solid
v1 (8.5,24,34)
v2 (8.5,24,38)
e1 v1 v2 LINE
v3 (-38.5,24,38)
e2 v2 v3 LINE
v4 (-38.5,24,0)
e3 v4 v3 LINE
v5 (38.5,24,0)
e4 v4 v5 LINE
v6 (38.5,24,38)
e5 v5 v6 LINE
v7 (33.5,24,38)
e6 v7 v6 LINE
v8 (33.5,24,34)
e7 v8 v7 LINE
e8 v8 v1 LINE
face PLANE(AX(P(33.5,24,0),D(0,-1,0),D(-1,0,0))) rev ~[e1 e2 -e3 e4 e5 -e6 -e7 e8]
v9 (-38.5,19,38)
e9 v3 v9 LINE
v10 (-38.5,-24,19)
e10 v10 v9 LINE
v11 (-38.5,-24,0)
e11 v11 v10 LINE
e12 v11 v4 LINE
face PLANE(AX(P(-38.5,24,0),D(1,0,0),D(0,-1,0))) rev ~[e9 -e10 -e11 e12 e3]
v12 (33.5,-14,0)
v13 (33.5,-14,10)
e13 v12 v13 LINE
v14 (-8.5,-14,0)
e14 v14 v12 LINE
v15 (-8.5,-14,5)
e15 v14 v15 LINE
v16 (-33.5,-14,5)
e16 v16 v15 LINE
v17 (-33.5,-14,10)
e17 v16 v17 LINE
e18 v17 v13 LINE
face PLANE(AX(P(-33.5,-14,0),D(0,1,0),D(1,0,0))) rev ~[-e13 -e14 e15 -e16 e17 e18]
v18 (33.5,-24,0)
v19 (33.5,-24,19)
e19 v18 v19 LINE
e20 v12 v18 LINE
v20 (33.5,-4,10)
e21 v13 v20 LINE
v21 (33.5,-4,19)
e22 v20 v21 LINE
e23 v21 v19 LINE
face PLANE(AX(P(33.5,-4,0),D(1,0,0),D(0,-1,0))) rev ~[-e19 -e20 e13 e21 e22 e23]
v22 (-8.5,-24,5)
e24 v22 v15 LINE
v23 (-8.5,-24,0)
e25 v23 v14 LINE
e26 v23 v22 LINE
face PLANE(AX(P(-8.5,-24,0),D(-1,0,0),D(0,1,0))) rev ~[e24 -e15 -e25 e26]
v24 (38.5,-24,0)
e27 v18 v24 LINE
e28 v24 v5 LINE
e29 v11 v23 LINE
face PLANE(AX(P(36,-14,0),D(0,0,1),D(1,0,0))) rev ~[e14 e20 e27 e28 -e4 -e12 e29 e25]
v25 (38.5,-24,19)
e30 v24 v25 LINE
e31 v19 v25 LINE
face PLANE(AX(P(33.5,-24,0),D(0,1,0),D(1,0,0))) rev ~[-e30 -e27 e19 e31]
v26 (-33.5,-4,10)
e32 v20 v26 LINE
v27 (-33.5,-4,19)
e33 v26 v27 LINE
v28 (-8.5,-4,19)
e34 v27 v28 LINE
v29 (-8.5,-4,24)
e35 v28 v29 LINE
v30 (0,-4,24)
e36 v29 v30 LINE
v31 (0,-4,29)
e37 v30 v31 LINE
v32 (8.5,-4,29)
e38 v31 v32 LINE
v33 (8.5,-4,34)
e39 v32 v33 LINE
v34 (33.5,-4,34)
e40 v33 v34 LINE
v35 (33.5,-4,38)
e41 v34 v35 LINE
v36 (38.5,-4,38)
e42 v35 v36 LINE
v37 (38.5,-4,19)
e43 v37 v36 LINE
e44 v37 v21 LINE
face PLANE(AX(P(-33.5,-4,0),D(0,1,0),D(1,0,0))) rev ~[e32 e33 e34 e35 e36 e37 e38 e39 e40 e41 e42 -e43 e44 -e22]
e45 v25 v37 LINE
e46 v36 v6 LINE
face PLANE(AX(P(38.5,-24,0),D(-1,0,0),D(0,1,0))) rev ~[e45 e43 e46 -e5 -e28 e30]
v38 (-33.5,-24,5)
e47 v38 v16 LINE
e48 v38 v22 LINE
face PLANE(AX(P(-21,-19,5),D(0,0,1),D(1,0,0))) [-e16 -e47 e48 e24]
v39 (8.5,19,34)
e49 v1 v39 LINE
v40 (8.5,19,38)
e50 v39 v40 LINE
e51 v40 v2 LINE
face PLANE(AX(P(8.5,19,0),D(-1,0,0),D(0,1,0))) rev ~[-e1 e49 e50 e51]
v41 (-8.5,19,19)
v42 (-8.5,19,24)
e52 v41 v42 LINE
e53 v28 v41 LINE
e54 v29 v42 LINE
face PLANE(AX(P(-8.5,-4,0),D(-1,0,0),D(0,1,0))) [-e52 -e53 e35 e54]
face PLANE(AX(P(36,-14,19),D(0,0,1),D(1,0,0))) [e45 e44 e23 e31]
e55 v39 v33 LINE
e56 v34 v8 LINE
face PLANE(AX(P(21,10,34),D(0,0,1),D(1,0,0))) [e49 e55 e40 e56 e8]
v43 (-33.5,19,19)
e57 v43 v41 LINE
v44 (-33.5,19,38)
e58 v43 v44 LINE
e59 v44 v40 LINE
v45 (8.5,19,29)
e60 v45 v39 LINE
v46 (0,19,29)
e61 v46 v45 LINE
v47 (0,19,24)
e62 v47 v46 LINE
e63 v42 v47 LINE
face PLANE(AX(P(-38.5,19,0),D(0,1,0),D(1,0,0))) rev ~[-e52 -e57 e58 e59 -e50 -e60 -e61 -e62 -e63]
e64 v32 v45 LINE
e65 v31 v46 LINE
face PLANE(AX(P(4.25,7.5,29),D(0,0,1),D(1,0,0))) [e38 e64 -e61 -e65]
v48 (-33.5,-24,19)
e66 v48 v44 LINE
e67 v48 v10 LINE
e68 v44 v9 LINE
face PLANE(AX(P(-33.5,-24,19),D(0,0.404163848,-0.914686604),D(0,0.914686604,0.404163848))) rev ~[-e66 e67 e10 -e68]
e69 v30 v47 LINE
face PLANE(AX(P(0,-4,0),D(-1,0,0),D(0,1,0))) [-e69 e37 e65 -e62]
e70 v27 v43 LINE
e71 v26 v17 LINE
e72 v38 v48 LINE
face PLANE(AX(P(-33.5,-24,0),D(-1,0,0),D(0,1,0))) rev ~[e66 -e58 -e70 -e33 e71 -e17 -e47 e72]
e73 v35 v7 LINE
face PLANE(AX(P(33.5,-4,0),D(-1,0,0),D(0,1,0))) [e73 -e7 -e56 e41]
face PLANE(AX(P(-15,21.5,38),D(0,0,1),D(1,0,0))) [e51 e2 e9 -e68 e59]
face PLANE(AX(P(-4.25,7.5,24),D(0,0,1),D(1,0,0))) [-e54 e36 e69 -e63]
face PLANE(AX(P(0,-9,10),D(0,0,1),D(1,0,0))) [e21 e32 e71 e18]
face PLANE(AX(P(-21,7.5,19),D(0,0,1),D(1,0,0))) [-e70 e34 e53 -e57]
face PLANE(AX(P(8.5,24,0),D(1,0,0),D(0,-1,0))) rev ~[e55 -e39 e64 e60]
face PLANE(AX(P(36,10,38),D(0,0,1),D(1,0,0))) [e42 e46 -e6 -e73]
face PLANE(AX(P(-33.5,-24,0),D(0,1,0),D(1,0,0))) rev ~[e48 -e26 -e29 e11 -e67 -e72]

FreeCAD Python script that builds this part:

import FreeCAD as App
import Part
import Sketcher

V = App.Vector
Q = App.Units.Quantity

doc = App.newDocument("Part")
body = doc.addObject("PartDesign::Body", "Body")

# Sketch on XY plane
sketch1 = body.newObject("Sketcher::SketchObject", "Sketch")
sketch1.AttachmentSupport = (doc.getObject("XY_Plane"), [""])
sketch1.MapMode = "FlatFace"
sketch1.addGeometry([
    Part.LineSegment(V(-34, -24, 0), V(-34, 19, 0)),
    Part.LineSegment(V(-34, 19, 0), V(-38, 19, 0)),
    Part.LineSegment(V(-38, 19, 0), V(-38, -24, 0)),
    Part.LineSegment(V(-38, -24, 0), V(-34, -24, 0)),
], False)
sketch1.addConstraint([
    Sketcher.Constraint("Coincident", 0, 2, 1, 1),
    Sketcher.Constraint("Coincident", 1, 2, 2, 1),
    Sketcher.Constraint("Coincident", 2, 2, 3, 1),
    Sketcher.Constraint("Coincident", 3, 2, 0, 1),
    Sketcher.Constraint("Vertical", 0),
    Sketcher.Constraint("Horizontal", 1),
    Sketcher.Constraint("Vertical", 2),
    Sketcher.Constraint("Horizontal", 3),
    Sketcher.Constraint("DistanceX", 1, 2, 1, 1, Q("5 mm")),
    Sketcher.Constraint("DistanceY", 0, 1, 0, 2, Q("43 mm")),
    Sketcher.Constraint("DistanceY", -1, 1, 0, 2, Q("19 mm")),
    Sketcher.Constraint("DistanceX", 0, 2, -1, 1, Q("33.5 mm")),
])
pad1 = body.newObject("PartDesign::Pad", "Pad")
pad1.Profile = sketch1
pad1.Length = 38

# Sketch on YZ plane
sketch2 = body.newObject("Sketcher::SketchObject", "Sketch001")
sketch2.AttachmentSupport = (doc.getObject("YZ_Plane"), [""])
sketch2.MapMode = "FlatFace"
sketch2.AttachmentOffset = App.Placement(V(0, 0, -33.5), App.Rotation())
sketch2.addGeometry([
    Part.LineSegment(V(-24, 19, 0), V(19, 38, 0)),
    Part.LineSegment(V(19, 38, 0), V(-24, 38, 0)),
    Part.LineSegment(V(-24, 38, 0), V(-24, 19, 0)),
], False)
sketch2.addConstraint([
    Sketcher.Constraint("Coincident", 0, 2, 1, 1),
    Sketcher.Constraint("Coincident", 1, 2, 2, 1),
    Sketcher.Constraint("Coincident", 2, 2, 0, 1),
    Sketcher.Constraint("Horizontal", 1),
    Sketcher.Constraint("Vertical", 2),
    Sketcher.Constraint("DistanceX", 1, 2, 1, 1, Q("43 mm")),
    Sketcher.Constraint("DistanceY", 2, 2, 2, 1, Q("19 mm")),
    Sketcher.Constraint("DistanceX", -1, 1, 0, 2, Q("19 mm")),
    Sketcher.Constraint("DistanceY", -1, 1, 0, 2, Q("38 mm")),
])
pocket1 = body.newObject("PartDesign::Pocket", "Pocket")
pocket1.Profile = sketch2
pocket1.Length = 25

# Sketch on XY plane
sketch3 = body.newObject("Sketcher::SketchObject", "Sketch002")
sketch3.AttachmentSupport = (doc.getObject("XY_Plane"), [""])
sketch3.MapMode = "FlatFace"
sketch3.addGeometry([
    Part.LineSegment(V(8, 19, 0), V(8, 24, 0)),
    Part.LineSegment(V(8, 24, 0), V(-38, 24, 0)),
    Part.LineSegment(V(-38, 24, 0), V(-38, 19, 0)),
    Part.LineSegment(V(-38, 19, 0), V(8, 19, 0)),
], False)
sketch3.addConstraint([
    Sketcher.Constraint("Coincident", 0, 2, 1, 1),
    Sketcher.Constraint("Coincident", 1, 2, 2, 1),
    Sketcher.Constraint("Coincident", 2, 2, 3, 1),
    Sketcher.Constraint("Coincident", 3, 2, 0, 1),
    Sketcher.Constraint("Vertical", 0),
    Sketcher.Constraint("Horizontal", 1),
    Sketcher.Constraint("Vertical", 2),
    Sketcher.Constraint("Horizontal", 3),
    Sketcher.Constraint("DistanceX", 1, 2, 1, 1, Q("47 mm")),
    Sketcher.Constraint("DistanceY", 0, 1, 0, 2, Q("5 mm")),
    Sketcher.Constraint("DistanceY", -1, 1, 0, 2, Q("24 mm")),
    Sketcher.Constraint("DistanceX", -1, 1, 0, 2, Q("8.5 mm")),
])
pad2 = body.newObject("PartDesign::Pad", "Pad001")
pad2.Profile = sketch3
pad2.Length = 38
body2 = doc.addObject("PartDesign::Body", "Body001")

# Sketch on XY plane
sketch4 = body2.newObject("Sketcher::SketchObject", "Sketch003")
sketch4.AttachmentSupport = (doc.getObject("XY_Plane001"), [""])
sketch4.MapMode = "FlatFace"
sketch4.addGeometry([
    Part.LineSegment(V(34, 24, 0), V(34, -4, 0)),
    Part.LineSegment(V(34, -4, 0), V(38, -4, 0)),
    Part.LineSegment(V(38, -4, 0), V(38, 24, 0)),
    Part.LineSegment(V(38, 24, 0), V(34, 24, 0)),
], False)
sketch4.addConstraint([
    Sketcher.Constraint("Coincident", 0, 2, 1, 1),
    Sketcher.Constraint("Coincident", 1, 2, 2, 1),
    Sketcher.Constraint("Coincident", 2, 2, 3, 1),
    Sketcher.Constraint("Coincident", 3, 2, 0, 1),
    Sketcher.Constraint("Vertical", 0),
    Sketcher.Constraint("Horizontal", 1),
    Sketcher.Constraint("Vertical", 2),
    Sketcher.Constraint("Horizontal", 3),
    Sketcher.Constraint("DistanceX", 1, 1, 1, 2, Q("5 mm")),
    Sketcher.Constraint("DistanceY", 0, 2, 0, 1, Q("28 mm")),
    Sketcher.Constraint("DistanceY", 0, 2, -1, 1, Q("4 mm")),
    Sketcher.Constraint("DistanceX", -1, 1, 0, 2, Q("33.5 mm")),
])
pad3 = body2.newObject("PartDesign::Pad", "Pad002")
pad3.Profile = sketch4
pad3.Length = 38
body.AllowCompound = True
doc.recompute()

boolean = body.newObject("PartDesign::Boolean", "Boolean")
boolean.Type = "Fuse"
boolean.addObjects([body2])

# Sketch on XY plane
sketch5 = body.newObject("Sketcher::SketchObject", "Sketch004")
sketch5.AttachmentSupport = (doc.getObject("XY_Plane"), [""])
sketch5.MapMode = "FlatFace"
sketch5.addGeometry([
    Part.LineSegment(V(8, -4, 0), V(34, -4, 0)),
    Part.LineSegment(V(34, -4, 0), V(34, 24, 0)),
    Part.LineSegment(V(34, 24, 0), V(8, 24, 0)),
    Part.LineSegment(V(8, 24, 0), V(8, -4, 0)),
], False)
sketch5.addConstraint([
    Sketcher.Constraint("Coincident", 0, 2, 1, 1),
    Sketcher.Constraint("Coincident", 1, 2, 2, 1),
    Sketcher.Constraint("Coincident", 2, 2, 3, 1),
    Sketcher.Constraint("Coincident", 3, 2, 0, 1),
    Sketcher.Constraint("Horizontal", 0),
    Sketcher.Constraint("Vertical", 1),
    Sketcher.Constraint("Horizontal", 2),
    Sketcher.Constraint("Vertical", 3),
    Sketcher.Constraint("DistanceX", 0, 1, 0, 2, Q("25 mm")),
    Sketcher.Constraint("DistanceY", 1, 1, 1, 2, Q("28 mm")),
    Sketcher.Constraint("DistanceY", 0, 2, -1, 1, Q("4 mm")),
    Sketcher.Constraint("DistanceX", -1, 1, 0, 2, Q("33.5 mm")),
])
pad4 = body.newObject("PartDesign::Pad", "Pad003")
pad4.Profile = sketch5
pad4.Length = 34

# Sketch on XY plane
sketch6 = body.newObject("Sketcher::SketchObject", "Sketch005")
sketch6.AttachmentSupport = (doc.getObject("XY_Plane"), [""])
sketch6.MapMode = "FlatFace"
sketch6.addGeometry([
    Part.LineSegment(V(0, 19, 0), V(0, -4, 0)),
    Part.LineSegment(V(0, -4, 0), V(8, -4, 0)),
    Part.LineSegment(V(8, -4, 0), V(8, 19, 0)),
    Part.LineSegment(V(8, 19, 0), V(0, 19, 0)),
], False)
sketch6.addConstraint([
    Sketcher.Constraint("Coincident", 0, 2, 1, 1),
    Sketcher.Constraint("Coincident", 1, 2, 2, 1),
    Sketcher.Constraint("Coincident", 2, 2, 3, 1),
    Sketcher.Constraint("Coincident", 3, 2, 0, 1),
    Sketcher.Constraint("Vertical", 0),
    Sketcher.Constraint("Horizontal", 1),
    Sketcher.Constraint("Vertical", 2),
    Sketcher.Constraint("Horizontal", 3),
    Sketcher.Constraint("PointOnObject", 0, 2, -2),
    Sketcher.Constraint("DistanceY", 0, 2, 0, 1, Q("23 mm")),
    Sketcher.Constraint("DistanceX", 1, 1, 1, 2, Q("8.5 mm")),
    Sketcher.Constraint("DistanceY", 0, 2, -1, 1, Q("4 mm")),
])
pad5 = body.newObject("PartDesign::Pad", "Pad004")
pad5.Profile = sketch6
pad5.Length = 29

# Sketch on XY plane
sketch7 = body.newObject("Sketcher::SketchObject", "Sketch006")
sketch7.AttachmentSupport = (doc.getObject("XY_Plane"), [""])
sketch7.MapMode = "FlatFace"
sketch7.addGeometry([
    Part.LineSegment(V(-8, 19, 0), V(-8, -4, 0)),
    Part.LineSegment(V(-8, -4, 0), V(0, -4, 0)),
    Part.LineSegment(V(0, -4, 0), V(0, 19, 0)),
    Part.LineSegment(V(0, 19, 0), V(-8, 19, 0)),
], False)
sketch7.addConstraint([
    Sketcher.Constraint("Coincident", 0, 2, 1, 1),
    Sketcher.Constraint("Coincident", 1, 2, 2, 1),
    Sketcher.Constraint("Coincident", 2, 2, 3, 1),
    Sketcher.Constraint("Coincident", 3, 2, 0, 1),
    Sketcher.Constraint("Vertical", 0),
    Sketcher.Constraint("Horizontal", 1),
    Sketcher.Constraint("Vertical", 2),
    Sketcher.Constraint("Horizontal", 3),
    Sketcher.Constraint("PointOnObject", 1, 2, -2),
    Sketcher.Constraint("DistanceY", 0, 2, 0, 1, Q("23 mm")),
    Sketcher.Constraint("DistanceX", 1, 1, 1, 2, Q("8.5 mm")),
    Sketcher.Constraint("DistanceY", 0, 2, -1, 1, Q("4 mm")),
])
pad6 = body.newObject("PartDesign::Pad", "Pad005")
pad6.Profile = sketch7
pad6.Length = 24

# Sketch on XY plane
sketch8 = body.newObject("Sketcher::SketchObject", "Sketch007")
sketch8.AttachmentSupport = (doc.getObject("XY_Plane"), [""])
sketch8.MapMode = "FlatFace"
sketch8.addGeometry([
    Part.LineSegment(V(-34, 19, 0), V(-34, -4, 0)),
    Part.LineSegment(V(-34, -4, 0), V(-8, -4, 0)),
    Part.LineSegment(V(-8, -4, 0), V(-8, 19, 0)),
    Part.LineSegment(V(-8, 19, 0), V(-34, 19, 0)),
], False)
sketch8.addConstraint([
    Sketcher.Constraint("Coincident", 0, 2, 1, 1),
    Sketcher.Constraint("Coincident", 1, 2, 2, 1),
    Sketcher.Constraint("Coincident", 2, 2, 3, 1),
    Sketcher.Constraint("Coincident", 3, 2, 0, 1),
    Sketcher.Constraint("Vertical", 0),
    Sketcher.Constraint("Horizontal", 1),
    Sketcher.Constraint("Vertical", 2),
    Sketcher.Constraint("Horizontal", 3),
    Sketcher.Constraint("DistanceX", 1, 1, 1, 2, Q("25 mm")),
    Sketcher.Constraint("DistanceY", 0, 2, 0, 1, Q("23 mm")),
    Sketcher.Constraint("DistanceY", 0, 2, -1, 1, Q("4 mm")),
    Sketcher.Constraint("DistanceX", 0, 2, -1, 1, Q("33.5 mm")),
])
pad7 = body.newObject("PartDesign::Pad", "Pad006")
pad7.Profile = sketch8
pad7.Length = 19

# Sketch on XY plane
sketch9 = body.newObject("Sketcher::SketchObject", "Sketch008")
sketch9.AttachmentSupport = (doc.getObject("XY_Plane"), [""])
sketch9.MapMode = "FlatFace"
sketch9.addGeometry([
    Part.LineSegment(V(34, -14, 0), V(34, -4, 0)),
    Part.LineSegment(V(34, -4, 0), V(-34, -4, 0)),
    Part.LineSegment(V(-34, -4, 0), V(-34, -14, 0)),
    Part.LineSegment(V(-34, -14, 0), V(34, -14, 0)),
], False)
sketch9.addConstraint([
    Sketcher.Constraint("Coincident", 0, 2, 1, 1),
    Sketcher.Constraint("Coincident", 1, 2, 2, 1),
    Sketcher.Constraint("Coincident", 2, 2, 3, 1),
    Sketcher.Constraint("Coincident", 3, 2, 0, 1),
    Sketcher.Constraint("Vertical", 0),
    Sketcher.Constraint("Horizontal", 1),
    Sketcher.Constraint("Vertical", 2),
    Sketcher.Constraint("Horizontal", 3),
    Sketcher.Constraint("DistanceX", 1, 2, 1, 1, Q("67 mm")),
    Sketcher.Constraint("DistanceY", 0, 1, 0, 2, Q("10 mm")),
    Sketcher.Constraint("DistanceY", 0, 2, -1, 1, Q("4 mm")),
    Sketcher.Constraint("DistanceX", -1, 1, 0, 2, Q("33.5 mm")),
])
pad8 = body.newObject("PartDesign::Pad", "Pad007")
pad8.Profile = sketch9
pad8.Length = 10

# Sketch on XY plane
sketch10 = body.newObject("Sketcher::SketchObject", "Sketch009")
sketch10.AttachmentSupport = (doc.getObject("XY_Plane"), [""])
sketch10.MapMode = "FlatFace"
sketch10.addGeometry([
    Part.LineSegment(V(-34, -14, 0), V(-34, -24, 0)),
    Part.LineSegment(V(-34, -24, 0), V(-8, -24, 0)),
    Part.LineSegment(V(-8, -24, 0), V(-8, -14, 0)),
    Part.LineSegment(V(-8, -14, 0), V(-34, -14, 0)),
], False)
sketch10.addConstraint([
    Sketcher.Constraint("Coincident", 0, 2, 1, 1),
    Sketcher.Constraint("Coincident", 1, 2, 2, 1),
    Sketcher.Constraint("Coincident", 2, 2, 3, 1),
    Sketcher.Constraint("Coincident", 3, 2, 0, 1),
    Sketcher.Constraint("Vertical", 0),
    Sketcher.Constraint("Horizontal", 1),
    Sketcher.Constraint("Vertical", 2),
    Sketcher.Constraint("Horizontal", 3),
    Sketcher.Constraint("DistanceX", 1, 1, 1, 2, Q("25 mm")),
    Sketcher.Constraint("DistanceY", 0, 2, 0, 1, Q("10 mm")),
    Sketcher.Constraint("DistanceY", 0, 2, -1, 1, Q("24 mm")),
    Sketcher.Constraint("DistanceX", 0, 2, -1, 1, Q("33.5 mm")),
])
pad9 = body.newObject("PartDesign::Pad", "Pad008")
pad9.Profile = sketch10
pad9.Length = 5

# Sketch on XY plane
sketch11 = body.newObject("Sketcher::SketchObject", "Sketch010")
sketch11.AttachmentSupport = (doc.getObject("XY_Plane"), [""])
sketch11.MapMode = "FlatFace"
sketch11.addGeometry([
    Part.LineSegment(V(34, -24, 0), V(38, -24, 0)),
    Part.LineSegment(V(38, -24, 0), V(38, -4, 0)),
    Part.LineSegment(V(38, -4, 0), V(34, -4, 0)),
    Part.LineSegment(V(34, -4, 0), V(34, -24, 0)),
], False)
sketch11.addConstraint([
    Sketcher.Constraint("Coincident", 0, 2, 1, 1),
    Sketcher.Constraint("Coincident", 1, 2, 2, 1),
    Sketcher.Constraint("Coincident", 2, 2, 3, 1),
    Sketcher.Constraint("Coincident", 3, 2, 0, 1),
    Sketcher.Constraint("Horizontal", 0),
    Sketcher.Constraint("Vertical", 1),
    Sketcher.Constraint("Horizontal", 2),
    Sketcher.Constraint("Vertical", 3),
    Sketcher.Constraint("DistanceX", 0, 1, 0, 2, Q("5 mm")),
    Sketcher.Constraint("DistanceY", 1, 1, 1, 2, Q("20 mm")),
    Sketcher.Constraint("DistanceY", 0, 2, -1, 1, Q("24 mm")),
    Sketcher.Constraint("DistanceX", -1, 1, 0, 2, Q("38.5 mm")),
])
pad10 = body.newObject("PartDesign::Pad", "Pad009")
pad10.Profile = sketch11
pad10.Length = 19

doc.recompute()
